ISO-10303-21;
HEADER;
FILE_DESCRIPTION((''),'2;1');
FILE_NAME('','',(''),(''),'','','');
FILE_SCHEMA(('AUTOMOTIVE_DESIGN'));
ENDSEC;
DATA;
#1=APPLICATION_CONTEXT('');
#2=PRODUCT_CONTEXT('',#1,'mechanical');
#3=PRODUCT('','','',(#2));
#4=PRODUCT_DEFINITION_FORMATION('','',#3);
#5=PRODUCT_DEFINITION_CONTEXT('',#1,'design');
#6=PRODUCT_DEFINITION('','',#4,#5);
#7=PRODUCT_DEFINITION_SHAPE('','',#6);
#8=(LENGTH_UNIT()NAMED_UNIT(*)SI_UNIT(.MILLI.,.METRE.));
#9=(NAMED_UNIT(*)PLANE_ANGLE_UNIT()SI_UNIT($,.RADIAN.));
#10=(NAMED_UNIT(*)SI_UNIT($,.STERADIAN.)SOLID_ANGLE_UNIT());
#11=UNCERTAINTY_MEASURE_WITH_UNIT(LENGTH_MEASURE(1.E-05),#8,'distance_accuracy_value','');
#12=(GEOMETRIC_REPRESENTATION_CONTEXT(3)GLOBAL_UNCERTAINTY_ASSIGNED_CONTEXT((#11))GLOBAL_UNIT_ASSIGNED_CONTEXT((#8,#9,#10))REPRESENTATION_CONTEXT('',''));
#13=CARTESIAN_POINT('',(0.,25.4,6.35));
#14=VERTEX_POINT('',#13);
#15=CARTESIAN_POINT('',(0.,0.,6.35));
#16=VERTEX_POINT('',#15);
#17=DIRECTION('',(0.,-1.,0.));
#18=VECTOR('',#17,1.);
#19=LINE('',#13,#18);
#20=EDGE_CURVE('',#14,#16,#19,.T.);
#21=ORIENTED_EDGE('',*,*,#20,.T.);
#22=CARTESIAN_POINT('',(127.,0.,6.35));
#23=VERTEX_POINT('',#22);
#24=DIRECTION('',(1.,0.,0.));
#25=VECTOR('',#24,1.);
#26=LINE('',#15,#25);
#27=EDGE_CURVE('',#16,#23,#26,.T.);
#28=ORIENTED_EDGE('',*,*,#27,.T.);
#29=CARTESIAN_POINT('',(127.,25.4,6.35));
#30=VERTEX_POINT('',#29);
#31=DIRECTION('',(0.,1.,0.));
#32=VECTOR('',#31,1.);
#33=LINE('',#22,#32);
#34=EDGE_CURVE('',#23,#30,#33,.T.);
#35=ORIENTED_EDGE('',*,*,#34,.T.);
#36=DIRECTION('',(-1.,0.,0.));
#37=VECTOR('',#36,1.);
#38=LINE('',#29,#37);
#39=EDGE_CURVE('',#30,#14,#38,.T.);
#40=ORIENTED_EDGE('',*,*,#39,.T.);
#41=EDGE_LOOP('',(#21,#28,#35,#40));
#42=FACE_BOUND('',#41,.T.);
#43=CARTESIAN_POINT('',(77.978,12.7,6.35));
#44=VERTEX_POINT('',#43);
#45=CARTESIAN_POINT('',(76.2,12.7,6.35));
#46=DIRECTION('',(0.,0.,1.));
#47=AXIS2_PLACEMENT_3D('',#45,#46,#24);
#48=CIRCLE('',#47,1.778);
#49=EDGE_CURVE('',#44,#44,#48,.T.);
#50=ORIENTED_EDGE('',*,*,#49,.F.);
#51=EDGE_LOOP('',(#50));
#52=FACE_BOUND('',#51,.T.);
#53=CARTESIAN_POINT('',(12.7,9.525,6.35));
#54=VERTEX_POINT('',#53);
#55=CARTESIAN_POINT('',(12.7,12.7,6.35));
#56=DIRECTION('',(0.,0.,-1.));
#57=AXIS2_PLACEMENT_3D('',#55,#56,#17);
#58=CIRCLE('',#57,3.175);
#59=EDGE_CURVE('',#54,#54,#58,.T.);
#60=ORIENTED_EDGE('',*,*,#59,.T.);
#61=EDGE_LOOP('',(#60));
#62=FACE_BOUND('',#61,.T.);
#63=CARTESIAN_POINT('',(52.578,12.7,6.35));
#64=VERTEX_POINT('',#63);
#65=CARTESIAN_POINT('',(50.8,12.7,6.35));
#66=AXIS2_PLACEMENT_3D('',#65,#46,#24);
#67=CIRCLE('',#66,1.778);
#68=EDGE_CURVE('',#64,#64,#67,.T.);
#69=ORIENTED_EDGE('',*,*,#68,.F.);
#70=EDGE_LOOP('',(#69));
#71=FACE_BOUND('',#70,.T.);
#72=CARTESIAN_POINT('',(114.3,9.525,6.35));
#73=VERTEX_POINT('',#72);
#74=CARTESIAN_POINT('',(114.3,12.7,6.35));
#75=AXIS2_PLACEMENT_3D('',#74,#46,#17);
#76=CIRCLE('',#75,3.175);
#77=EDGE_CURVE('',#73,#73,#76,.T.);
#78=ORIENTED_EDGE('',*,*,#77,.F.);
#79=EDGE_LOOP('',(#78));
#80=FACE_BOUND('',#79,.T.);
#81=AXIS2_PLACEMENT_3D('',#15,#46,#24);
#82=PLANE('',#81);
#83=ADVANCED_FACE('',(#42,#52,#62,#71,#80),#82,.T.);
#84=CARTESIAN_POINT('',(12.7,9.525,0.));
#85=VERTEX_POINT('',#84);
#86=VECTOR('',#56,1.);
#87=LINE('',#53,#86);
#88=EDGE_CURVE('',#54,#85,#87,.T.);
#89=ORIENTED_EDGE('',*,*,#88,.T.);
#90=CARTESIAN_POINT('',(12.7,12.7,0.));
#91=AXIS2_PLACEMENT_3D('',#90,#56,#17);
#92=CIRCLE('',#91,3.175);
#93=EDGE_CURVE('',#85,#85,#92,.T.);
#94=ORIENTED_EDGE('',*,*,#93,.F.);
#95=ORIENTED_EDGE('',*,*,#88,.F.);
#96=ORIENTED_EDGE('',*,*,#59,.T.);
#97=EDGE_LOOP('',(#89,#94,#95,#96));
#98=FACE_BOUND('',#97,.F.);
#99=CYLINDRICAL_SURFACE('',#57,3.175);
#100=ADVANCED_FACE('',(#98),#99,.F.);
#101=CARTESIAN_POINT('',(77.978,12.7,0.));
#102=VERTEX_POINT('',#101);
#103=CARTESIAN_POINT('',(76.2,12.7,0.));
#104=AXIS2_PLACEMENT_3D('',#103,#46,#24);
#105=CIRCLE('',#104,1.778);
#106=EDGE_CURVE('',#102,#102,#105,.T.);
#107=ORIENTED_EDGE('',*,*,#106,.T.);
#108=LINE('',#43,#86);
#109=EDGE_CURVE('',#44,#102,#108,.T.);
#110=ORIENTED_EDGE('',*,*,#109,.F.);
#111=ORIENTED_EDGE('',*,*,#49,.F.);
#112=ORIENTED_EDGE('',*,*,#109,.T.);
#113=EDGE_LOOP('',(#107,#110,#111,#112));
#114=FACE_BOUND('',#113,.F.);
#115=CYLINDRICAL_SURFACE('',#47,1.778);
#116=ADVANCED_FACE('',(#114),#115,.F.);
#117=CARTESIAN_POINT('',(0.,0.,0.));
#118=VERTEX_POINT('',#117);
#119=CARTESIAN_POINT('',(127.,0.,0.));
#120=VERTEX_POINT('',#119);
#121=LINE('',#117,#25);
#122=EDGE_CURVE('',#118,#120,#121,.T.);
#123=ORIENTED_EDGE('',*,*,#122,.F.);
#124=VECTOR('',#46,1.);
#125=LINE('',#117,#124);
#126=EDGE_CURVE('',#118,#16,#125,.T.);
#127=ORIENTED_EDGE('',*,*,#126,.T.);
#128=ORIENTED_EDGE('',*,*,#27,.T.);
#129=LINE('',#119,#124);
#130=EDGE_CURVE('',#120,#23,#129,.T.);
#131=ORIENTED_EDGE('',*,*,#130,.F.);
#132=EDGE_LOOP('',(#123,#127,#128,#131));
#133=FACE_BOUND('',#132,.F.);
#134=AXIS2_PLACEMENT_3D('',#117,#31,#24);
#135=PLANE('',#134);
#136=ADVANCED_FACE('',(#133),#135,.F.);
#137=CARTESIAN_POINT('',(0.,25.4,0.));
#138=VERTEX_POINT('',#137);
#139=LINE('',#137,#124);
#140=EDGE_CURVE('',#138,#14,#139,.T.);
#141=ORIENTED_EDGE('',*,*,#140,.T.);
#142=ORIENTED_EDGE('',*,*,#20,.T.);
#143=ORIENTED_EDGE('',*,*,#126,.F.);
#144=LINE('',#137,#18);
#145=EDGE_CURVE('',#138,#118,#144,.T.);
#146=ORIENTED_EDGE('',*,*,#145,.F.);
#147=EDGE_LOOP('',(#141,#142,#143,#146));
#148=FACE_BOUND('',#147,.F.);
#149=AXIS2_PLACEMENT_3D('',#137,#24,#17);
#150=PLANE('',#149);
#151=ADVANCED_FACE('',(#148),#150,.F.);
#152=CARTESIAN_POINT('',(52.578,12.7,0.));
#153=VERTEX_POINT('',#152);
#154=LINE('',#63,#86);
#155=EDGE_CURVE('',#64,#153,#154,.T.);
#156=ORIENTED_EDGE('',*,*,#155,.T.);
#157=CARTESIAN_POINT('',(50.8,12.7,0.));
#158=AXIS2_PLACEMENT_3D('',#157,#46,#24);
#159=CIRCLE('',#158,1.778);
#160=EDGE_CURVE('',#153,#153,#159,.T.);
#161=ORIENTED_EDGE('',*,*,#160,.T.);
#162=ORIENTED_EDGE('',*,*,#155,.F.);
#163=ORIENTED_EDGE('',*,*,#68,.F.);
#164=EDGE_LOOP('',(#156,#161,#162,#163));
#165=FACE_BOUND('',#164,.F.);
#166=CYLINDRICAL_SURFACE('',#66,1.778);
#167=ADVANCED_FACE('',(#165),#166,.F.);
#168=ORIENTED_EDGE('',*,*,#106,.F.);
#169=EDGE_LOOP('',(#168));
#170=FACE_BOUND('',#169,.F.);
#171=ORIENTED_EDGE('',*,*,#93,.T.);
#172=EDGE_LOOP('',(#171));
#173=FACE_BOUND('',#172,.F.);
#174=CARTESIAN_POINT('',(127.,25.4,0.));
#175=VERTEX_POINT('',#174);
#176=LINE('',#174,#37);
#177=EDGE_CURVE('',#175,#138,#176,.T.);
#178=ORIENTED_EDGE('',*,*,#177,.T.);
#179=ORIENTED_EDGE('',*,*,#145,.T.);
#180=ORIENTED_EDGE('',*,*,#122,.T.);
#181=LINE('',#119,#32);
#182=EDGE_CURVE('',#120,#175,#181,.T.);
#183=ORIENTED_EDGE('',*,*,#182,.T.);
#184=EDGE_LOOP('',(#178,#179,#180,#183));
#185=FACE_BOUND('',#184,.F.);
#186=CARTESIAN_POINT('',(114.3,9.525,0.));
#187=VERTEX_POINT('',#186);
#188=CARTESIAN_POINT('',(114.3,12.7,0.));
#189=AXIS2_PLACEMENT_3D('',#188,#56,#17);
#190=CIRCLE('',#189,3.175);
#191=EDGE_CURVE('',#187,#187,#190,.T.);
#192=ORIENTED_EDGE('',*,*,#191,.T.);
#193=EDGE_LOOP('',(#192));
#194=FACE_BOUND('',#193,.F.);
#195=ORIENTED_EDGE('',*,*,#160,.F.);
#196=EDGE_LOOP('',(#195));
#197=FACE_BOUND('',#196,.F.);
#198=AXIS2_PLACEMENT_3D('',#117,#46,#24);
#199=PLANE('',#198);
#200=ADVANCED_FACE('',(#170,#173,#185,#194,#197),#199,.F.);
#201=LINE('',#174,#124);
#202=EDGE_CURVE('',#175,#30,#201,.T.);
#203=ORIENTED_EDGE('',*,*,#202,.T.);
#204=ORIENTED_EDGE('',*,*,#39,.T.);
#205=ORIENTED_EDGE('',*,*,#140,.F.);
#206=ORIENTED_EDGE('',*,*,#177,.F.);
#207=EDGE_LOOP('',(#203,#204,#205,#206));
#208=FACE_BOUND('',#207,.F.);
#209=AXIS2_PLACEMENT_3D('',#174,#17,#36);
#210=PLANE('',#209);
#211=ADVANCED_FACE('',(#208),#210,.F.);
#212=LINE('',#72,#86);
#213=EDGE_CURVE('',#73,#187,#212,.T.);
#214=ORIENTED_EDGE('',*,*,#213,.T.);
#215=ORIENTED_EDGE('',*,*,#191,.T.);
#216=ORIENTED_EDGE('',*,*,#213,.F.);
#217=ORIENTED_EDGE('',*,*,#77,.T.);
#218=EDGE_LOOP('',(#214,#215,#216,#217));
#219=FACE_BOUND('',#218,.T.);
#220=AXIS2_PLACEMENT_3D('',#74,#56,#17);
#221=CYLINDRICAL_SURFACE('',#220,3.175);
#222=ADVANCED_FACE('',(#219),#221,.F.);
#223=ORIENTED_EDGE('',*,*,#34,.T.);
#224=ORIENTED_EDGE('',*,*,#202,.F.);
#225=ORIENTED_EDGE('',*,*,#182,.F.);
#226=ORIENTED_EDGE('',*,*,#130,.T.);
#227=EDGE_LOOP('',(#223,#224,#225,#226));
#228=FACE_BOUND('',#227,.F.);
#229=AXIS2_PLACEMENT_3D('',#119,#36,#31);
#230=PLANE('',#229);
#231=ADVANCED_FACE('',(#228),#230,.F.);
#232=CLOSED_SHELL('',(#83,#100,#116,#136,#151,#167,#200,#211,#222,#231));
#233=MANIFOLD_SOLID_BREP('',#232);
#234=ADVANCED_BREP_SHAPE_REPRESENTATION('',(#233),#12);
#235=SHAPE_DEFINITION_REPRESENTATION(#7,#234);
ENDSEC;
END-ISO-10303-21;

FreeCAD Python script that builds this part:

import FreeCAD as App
import Part
import Sketcher
Q = App.Units.Quantity

doc = App.newDocument("Part")
body = doc.addObject("PartDesign::Body", "Body")

sketch1 = body.newObject("Sketcher::SketchObject", "Sketch")
sketch1.AttachmentSupport = (doc.getObject("XY_Plane"), [""])
sketch1.MapMode = "FlatFace"
sketch1.addGeometry(Part.LineSegment(App.Vector(0, 25.4, 0), App.Vector(0, 0, 0)), False)
sketch1.addGeometry(Part.LineSegment(App.Vector(0, 0, 0), App.Vector(127, 0, 0)), False)
sketch1.addGeometry(Part.LineSegment(App.Vector(127, 0, 0), App.Vector(127, 25.4, 0)), False)
sketch1.addGeometry(Part.LineSegment(App.Vector(127, 25.4, 0), App.Vector(0, 25.4, 0)), False)
sketch1.addConstraint(Sketcher.Constraint("Coincident", 0, 2, 1, 1))
sketch1.addConstraint(Sketcher.Constraint("Coincident", 1, 2, 2, 1))
sketch1.addConstraint(Sketcher.Constraint("Coincident", 2, 2, 3, 1))
sketch1.addConstraint(Sketcher.Constraint("Coincident", 3, 2, 0, 1))
sketch1.addConstraint(Sketcher.Constraint("Vertical", 0))
sketch1.addConstraint(Sketcher.Constraint("Horizontal", 1))
sketch1.addConstraint(Sketcher.Constraint("Vertical", 2))
sketch1.addConstraint(Sketcher.Constraint("Horizontal", 3))
sketch1.addConstraint(Sketcher.Constraint("Coincident", 0, 2, -1, 1))
sketch1.addConstraint(Sketcher.Constraint("DistanceX", 1, 1, 1, 2, Q("5 in")))
sketch1.addConstraint(Sketcher.Constraint("DistanceY", 0, 2, 0, 1, Q("1 in")))
pad1 = body.newObject("PartDesign::Pad", "Pad")
pad1.Profile = sketch1
pad1.Length = Q("0.25 in")

sketch2 = body.newObject("Sketcher::SketchObject", "Sketch001")
sketch2.AttachmentSupport = (doc.getObject("XY_Plane"), [""])
sketch2.MapMode = "FlatFace"
sketch2.AttachmentOffset = App.Placement(App.Vector(0, 0, 0.25 * 25.4), App.Rotation())
sketch2.addGeometry(Part.Circle(App.Vector(12.7, 12.7, 0), App.Vector(0, 0, 1), 3.175), False)
sketch2.addConstraint(Sketcher.Constraint("Diameter", 0, Q("0.25 in")))
sketch2.addConstraint(Sketcher.Constraint("DistanceX", -1, 1, 0, 3, Q("0.5 in")))
sketch2.addConstraint(Sketcher.Constraint("DistanceY", -1, 1, 0, 3, Q("0.5 in")))
doc.recompute()
hole = body.newObject("PartDesign::Hole", "Hole")
hole.Profile = sketch2
hole.ThreadType = "None"
hole.Diameter = Q("0.25 in")
hole.DepthType = "ThroughAll"
doc.recompute()

datumplane = body.newObject("PartDesign::Plane", "DatumPlane")
datumplane.AttachmentSupport = (doc.getObject("YZ_Plane"), [""])
datumplane.MapMode = "FlatFace"
datumplane.AttachmentOffset = App.Placement(App.Vector(0, 0, 2.5 * 25.4), App.Rotation())
mirrored = body.newObject("PartDesign::Mirrored", "Mirrored")
mirrored.Originals = [hole]
mirrored.MirrorPlane = (datumplane, [""])
body.Tip = mirrored

sketch3 = body.newObject("Sketcher::SketchObject", "Sketch002")
sketch3.AttachmentSupport = (doc.getObject("XY_Plane"), [""])
sketch3.MapMode = "FlatFace"
sketch3.AttachmentOffset = App.Placement(App.Vector(0, 0, 0.25 * 25.4), App.Rotation())
sketch3.addGeometry(Part.Circle(App.Vector(50.8, 12.7, 0), App.Vector(0, 0, 1), 1.778), False)
sketch3.addGeometry(Part.Circle(App.Vector(76.2, 12.7, 0), App.Vector(0, 0, 1), 1.778), False)
sketch3.addConstraint(Sketcher.Constraint("Equal", 0, 1))
sketch3.addConstraint(Sketcher.Constraint("Horizontal", 0, 3, 1, 3))
sketch3.addConstraint(Sketcher.Constraint("Diameter", 0, Q("0.14 in")))
sketch3.addConstraint(Sketcher.Constraint("DistanceX", -1, 1, 0, 3, Q("2 in")))
sketch3.addConstraint(Sketcher.Constraint("DistanceY", -1, 1, 0, 3, Q("0.5 in")))
sketch3.addConstraint(Sketcher.Constraint("DistanceX", -1, 1, 1, 3, Q("3 in")))
pocket1 = body.newObject("PartDesign::Pocket", "Pocket")
pocket1.Profile = sketch3
pocket1.Length = Q("0.25 in")

doc.recompute()
